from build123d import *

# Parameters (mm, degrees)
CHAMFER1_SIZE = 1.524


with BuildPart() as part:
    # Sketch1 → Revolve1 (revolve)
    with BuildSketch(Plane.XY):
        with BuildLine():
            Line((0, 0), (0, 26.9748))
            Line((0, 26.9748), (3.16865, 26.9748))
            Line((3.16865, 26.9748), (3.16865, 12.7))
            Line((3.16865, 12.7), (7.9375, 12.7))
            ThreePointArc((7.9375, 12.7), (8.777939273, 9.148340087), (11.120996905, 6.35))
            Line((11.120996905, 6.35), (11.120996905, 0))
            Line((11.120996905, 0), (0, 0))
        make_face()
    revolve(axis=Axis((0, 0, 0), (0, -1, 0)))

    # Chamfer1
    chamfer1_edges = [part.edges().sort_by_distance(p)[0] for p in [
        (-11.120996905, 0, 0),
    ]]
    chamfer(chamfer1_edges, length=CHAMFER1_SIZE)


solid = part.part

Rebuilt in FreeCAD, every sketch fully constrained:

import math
import FreeCAD as App
import Part
import Sketcher

V = App.Vector
Q = App.Units.Quantity


def edges_at(feature, points):
    """Names of the edges that pass closest to the given points."""
    edges = feature.Shape.Edges
    near = lambda p: min(range(len(edges)), key=lambda i: edges[i].distToShape(Part.Vertex(*p))[0])
    return sorted({f"Edge{near(p) + 1}" for p in points})

doc = App.newDocument("Part")
body = doc.addObject("PartDesign::Body", "Body")

# Sketch on XY plane
sketch1 = doc.addObject("Sketcher::SketchObject", "Sketch")
body.addObject(sketch1)
sketch1.AttachmentSupport = (doc.XY_Plane, [""])
sketch1.MapMode = "FlatFace"
sketch1.addGeometry([
    Part.LineSegment(V(0, 27, 0), V(0, 0, 0)),  # 0
    Part.LineSegment(V(0, 0, 0), V(11.1, 0, 0)),  # 1
    Part.LineSegment(V(11.1, 0, 0), V(11.1, 6.3, 0)),  # 2
    Part.ArcOfCircle(Part.Circle(V(15.9, 12.7, 0), V(0, 0, 1), 7.9), math.radians(180), math.radians(233)),  # 3
    Part.LineSegment(V(7.9, 12.7, 0), V(3.2, 12.7, 0)),  # 4
    Part.LineSegment(V(3.2, 12.7, 0), V(3.2, 27, 0)),  # 5
    Part.LineSegment(V(3.2, 27, 0), V(0, 27, 0)),  # 6
], False)
sketch1.addConstraint([
    Sketcher.Constraint("Coincident", 0, 2, 1, 1),
    Sketcher.Constraint("Coincident", 1, 2, 2, 1),
    Sketcher.Constraint("Coincident", 2, 2, 3, 2),
    Sketcher.Constraint("Coincident", 3, 1, 4, 1),
    Sketcher.Constraint("Coincident", 4, 2, 5, 1),
    Sketcher.Constraint("Coincident", 5, 2, 6, 1),
    Sketcher.Constraint("Coincident", 6, 2, 0, 1),
    Sketcher.Constraint("Vertical", 0),
    Sketcher.Constraint("Horizontal", 1),
    Sketcher.Constraint("Vertical", 2),
    Sketcher.Constraint("Horizontal", 4),
    Sketcher.Constraint("Vertical", 5),
    Sketcher.Constraint("Horizontal", 6),
    Sketcher.Constraint("Coincident", 0, 2, -1, 1),
    Sketcher.Constraint("Radius", 3, Q("0.312 in")),
    Sketcher.Constraint("DistanceY", 2, 1, 2, 2, Q("0.25 in")),
    Sketcher.Constraint("DistanceY", -1, 1, 3, 3, Q("0.5 in")),
    Sketcher.Constraint("DistanceY", -1, 1, 3, 1, Q("0.5 in")),
    Sketcher.Constraint("DistanceY", 0, 2, 0, 1, Q("1.062 in")),
    Sketcher.Constraint("DistanceX", -1, 1, 3, 1, Q("0.3125 in")),
    Sketcher.Constraint("DistanceX", 4, 2, 4, 1, Q("4.76885 mm")),
])
revolution = doc.addObject("PartDesign::Revolution", "Revolution")
body.addObject(revolution)
revolution.Profile = sketch1
revolution.ReferenceAxis = (sketch1, ["V_Axis"])
revolution.Angle = 360
doc.recompute()

chamfer = doc.addObject("PartDesign::Chamfer", "Chamfer")
body.addObject(chamfer)
chamfer.Base = (revolution, edges_at(revolution, [(-11.121, 0, 0)]))
chamfer.Size = Q("0.06 in")

doc.recompute()
